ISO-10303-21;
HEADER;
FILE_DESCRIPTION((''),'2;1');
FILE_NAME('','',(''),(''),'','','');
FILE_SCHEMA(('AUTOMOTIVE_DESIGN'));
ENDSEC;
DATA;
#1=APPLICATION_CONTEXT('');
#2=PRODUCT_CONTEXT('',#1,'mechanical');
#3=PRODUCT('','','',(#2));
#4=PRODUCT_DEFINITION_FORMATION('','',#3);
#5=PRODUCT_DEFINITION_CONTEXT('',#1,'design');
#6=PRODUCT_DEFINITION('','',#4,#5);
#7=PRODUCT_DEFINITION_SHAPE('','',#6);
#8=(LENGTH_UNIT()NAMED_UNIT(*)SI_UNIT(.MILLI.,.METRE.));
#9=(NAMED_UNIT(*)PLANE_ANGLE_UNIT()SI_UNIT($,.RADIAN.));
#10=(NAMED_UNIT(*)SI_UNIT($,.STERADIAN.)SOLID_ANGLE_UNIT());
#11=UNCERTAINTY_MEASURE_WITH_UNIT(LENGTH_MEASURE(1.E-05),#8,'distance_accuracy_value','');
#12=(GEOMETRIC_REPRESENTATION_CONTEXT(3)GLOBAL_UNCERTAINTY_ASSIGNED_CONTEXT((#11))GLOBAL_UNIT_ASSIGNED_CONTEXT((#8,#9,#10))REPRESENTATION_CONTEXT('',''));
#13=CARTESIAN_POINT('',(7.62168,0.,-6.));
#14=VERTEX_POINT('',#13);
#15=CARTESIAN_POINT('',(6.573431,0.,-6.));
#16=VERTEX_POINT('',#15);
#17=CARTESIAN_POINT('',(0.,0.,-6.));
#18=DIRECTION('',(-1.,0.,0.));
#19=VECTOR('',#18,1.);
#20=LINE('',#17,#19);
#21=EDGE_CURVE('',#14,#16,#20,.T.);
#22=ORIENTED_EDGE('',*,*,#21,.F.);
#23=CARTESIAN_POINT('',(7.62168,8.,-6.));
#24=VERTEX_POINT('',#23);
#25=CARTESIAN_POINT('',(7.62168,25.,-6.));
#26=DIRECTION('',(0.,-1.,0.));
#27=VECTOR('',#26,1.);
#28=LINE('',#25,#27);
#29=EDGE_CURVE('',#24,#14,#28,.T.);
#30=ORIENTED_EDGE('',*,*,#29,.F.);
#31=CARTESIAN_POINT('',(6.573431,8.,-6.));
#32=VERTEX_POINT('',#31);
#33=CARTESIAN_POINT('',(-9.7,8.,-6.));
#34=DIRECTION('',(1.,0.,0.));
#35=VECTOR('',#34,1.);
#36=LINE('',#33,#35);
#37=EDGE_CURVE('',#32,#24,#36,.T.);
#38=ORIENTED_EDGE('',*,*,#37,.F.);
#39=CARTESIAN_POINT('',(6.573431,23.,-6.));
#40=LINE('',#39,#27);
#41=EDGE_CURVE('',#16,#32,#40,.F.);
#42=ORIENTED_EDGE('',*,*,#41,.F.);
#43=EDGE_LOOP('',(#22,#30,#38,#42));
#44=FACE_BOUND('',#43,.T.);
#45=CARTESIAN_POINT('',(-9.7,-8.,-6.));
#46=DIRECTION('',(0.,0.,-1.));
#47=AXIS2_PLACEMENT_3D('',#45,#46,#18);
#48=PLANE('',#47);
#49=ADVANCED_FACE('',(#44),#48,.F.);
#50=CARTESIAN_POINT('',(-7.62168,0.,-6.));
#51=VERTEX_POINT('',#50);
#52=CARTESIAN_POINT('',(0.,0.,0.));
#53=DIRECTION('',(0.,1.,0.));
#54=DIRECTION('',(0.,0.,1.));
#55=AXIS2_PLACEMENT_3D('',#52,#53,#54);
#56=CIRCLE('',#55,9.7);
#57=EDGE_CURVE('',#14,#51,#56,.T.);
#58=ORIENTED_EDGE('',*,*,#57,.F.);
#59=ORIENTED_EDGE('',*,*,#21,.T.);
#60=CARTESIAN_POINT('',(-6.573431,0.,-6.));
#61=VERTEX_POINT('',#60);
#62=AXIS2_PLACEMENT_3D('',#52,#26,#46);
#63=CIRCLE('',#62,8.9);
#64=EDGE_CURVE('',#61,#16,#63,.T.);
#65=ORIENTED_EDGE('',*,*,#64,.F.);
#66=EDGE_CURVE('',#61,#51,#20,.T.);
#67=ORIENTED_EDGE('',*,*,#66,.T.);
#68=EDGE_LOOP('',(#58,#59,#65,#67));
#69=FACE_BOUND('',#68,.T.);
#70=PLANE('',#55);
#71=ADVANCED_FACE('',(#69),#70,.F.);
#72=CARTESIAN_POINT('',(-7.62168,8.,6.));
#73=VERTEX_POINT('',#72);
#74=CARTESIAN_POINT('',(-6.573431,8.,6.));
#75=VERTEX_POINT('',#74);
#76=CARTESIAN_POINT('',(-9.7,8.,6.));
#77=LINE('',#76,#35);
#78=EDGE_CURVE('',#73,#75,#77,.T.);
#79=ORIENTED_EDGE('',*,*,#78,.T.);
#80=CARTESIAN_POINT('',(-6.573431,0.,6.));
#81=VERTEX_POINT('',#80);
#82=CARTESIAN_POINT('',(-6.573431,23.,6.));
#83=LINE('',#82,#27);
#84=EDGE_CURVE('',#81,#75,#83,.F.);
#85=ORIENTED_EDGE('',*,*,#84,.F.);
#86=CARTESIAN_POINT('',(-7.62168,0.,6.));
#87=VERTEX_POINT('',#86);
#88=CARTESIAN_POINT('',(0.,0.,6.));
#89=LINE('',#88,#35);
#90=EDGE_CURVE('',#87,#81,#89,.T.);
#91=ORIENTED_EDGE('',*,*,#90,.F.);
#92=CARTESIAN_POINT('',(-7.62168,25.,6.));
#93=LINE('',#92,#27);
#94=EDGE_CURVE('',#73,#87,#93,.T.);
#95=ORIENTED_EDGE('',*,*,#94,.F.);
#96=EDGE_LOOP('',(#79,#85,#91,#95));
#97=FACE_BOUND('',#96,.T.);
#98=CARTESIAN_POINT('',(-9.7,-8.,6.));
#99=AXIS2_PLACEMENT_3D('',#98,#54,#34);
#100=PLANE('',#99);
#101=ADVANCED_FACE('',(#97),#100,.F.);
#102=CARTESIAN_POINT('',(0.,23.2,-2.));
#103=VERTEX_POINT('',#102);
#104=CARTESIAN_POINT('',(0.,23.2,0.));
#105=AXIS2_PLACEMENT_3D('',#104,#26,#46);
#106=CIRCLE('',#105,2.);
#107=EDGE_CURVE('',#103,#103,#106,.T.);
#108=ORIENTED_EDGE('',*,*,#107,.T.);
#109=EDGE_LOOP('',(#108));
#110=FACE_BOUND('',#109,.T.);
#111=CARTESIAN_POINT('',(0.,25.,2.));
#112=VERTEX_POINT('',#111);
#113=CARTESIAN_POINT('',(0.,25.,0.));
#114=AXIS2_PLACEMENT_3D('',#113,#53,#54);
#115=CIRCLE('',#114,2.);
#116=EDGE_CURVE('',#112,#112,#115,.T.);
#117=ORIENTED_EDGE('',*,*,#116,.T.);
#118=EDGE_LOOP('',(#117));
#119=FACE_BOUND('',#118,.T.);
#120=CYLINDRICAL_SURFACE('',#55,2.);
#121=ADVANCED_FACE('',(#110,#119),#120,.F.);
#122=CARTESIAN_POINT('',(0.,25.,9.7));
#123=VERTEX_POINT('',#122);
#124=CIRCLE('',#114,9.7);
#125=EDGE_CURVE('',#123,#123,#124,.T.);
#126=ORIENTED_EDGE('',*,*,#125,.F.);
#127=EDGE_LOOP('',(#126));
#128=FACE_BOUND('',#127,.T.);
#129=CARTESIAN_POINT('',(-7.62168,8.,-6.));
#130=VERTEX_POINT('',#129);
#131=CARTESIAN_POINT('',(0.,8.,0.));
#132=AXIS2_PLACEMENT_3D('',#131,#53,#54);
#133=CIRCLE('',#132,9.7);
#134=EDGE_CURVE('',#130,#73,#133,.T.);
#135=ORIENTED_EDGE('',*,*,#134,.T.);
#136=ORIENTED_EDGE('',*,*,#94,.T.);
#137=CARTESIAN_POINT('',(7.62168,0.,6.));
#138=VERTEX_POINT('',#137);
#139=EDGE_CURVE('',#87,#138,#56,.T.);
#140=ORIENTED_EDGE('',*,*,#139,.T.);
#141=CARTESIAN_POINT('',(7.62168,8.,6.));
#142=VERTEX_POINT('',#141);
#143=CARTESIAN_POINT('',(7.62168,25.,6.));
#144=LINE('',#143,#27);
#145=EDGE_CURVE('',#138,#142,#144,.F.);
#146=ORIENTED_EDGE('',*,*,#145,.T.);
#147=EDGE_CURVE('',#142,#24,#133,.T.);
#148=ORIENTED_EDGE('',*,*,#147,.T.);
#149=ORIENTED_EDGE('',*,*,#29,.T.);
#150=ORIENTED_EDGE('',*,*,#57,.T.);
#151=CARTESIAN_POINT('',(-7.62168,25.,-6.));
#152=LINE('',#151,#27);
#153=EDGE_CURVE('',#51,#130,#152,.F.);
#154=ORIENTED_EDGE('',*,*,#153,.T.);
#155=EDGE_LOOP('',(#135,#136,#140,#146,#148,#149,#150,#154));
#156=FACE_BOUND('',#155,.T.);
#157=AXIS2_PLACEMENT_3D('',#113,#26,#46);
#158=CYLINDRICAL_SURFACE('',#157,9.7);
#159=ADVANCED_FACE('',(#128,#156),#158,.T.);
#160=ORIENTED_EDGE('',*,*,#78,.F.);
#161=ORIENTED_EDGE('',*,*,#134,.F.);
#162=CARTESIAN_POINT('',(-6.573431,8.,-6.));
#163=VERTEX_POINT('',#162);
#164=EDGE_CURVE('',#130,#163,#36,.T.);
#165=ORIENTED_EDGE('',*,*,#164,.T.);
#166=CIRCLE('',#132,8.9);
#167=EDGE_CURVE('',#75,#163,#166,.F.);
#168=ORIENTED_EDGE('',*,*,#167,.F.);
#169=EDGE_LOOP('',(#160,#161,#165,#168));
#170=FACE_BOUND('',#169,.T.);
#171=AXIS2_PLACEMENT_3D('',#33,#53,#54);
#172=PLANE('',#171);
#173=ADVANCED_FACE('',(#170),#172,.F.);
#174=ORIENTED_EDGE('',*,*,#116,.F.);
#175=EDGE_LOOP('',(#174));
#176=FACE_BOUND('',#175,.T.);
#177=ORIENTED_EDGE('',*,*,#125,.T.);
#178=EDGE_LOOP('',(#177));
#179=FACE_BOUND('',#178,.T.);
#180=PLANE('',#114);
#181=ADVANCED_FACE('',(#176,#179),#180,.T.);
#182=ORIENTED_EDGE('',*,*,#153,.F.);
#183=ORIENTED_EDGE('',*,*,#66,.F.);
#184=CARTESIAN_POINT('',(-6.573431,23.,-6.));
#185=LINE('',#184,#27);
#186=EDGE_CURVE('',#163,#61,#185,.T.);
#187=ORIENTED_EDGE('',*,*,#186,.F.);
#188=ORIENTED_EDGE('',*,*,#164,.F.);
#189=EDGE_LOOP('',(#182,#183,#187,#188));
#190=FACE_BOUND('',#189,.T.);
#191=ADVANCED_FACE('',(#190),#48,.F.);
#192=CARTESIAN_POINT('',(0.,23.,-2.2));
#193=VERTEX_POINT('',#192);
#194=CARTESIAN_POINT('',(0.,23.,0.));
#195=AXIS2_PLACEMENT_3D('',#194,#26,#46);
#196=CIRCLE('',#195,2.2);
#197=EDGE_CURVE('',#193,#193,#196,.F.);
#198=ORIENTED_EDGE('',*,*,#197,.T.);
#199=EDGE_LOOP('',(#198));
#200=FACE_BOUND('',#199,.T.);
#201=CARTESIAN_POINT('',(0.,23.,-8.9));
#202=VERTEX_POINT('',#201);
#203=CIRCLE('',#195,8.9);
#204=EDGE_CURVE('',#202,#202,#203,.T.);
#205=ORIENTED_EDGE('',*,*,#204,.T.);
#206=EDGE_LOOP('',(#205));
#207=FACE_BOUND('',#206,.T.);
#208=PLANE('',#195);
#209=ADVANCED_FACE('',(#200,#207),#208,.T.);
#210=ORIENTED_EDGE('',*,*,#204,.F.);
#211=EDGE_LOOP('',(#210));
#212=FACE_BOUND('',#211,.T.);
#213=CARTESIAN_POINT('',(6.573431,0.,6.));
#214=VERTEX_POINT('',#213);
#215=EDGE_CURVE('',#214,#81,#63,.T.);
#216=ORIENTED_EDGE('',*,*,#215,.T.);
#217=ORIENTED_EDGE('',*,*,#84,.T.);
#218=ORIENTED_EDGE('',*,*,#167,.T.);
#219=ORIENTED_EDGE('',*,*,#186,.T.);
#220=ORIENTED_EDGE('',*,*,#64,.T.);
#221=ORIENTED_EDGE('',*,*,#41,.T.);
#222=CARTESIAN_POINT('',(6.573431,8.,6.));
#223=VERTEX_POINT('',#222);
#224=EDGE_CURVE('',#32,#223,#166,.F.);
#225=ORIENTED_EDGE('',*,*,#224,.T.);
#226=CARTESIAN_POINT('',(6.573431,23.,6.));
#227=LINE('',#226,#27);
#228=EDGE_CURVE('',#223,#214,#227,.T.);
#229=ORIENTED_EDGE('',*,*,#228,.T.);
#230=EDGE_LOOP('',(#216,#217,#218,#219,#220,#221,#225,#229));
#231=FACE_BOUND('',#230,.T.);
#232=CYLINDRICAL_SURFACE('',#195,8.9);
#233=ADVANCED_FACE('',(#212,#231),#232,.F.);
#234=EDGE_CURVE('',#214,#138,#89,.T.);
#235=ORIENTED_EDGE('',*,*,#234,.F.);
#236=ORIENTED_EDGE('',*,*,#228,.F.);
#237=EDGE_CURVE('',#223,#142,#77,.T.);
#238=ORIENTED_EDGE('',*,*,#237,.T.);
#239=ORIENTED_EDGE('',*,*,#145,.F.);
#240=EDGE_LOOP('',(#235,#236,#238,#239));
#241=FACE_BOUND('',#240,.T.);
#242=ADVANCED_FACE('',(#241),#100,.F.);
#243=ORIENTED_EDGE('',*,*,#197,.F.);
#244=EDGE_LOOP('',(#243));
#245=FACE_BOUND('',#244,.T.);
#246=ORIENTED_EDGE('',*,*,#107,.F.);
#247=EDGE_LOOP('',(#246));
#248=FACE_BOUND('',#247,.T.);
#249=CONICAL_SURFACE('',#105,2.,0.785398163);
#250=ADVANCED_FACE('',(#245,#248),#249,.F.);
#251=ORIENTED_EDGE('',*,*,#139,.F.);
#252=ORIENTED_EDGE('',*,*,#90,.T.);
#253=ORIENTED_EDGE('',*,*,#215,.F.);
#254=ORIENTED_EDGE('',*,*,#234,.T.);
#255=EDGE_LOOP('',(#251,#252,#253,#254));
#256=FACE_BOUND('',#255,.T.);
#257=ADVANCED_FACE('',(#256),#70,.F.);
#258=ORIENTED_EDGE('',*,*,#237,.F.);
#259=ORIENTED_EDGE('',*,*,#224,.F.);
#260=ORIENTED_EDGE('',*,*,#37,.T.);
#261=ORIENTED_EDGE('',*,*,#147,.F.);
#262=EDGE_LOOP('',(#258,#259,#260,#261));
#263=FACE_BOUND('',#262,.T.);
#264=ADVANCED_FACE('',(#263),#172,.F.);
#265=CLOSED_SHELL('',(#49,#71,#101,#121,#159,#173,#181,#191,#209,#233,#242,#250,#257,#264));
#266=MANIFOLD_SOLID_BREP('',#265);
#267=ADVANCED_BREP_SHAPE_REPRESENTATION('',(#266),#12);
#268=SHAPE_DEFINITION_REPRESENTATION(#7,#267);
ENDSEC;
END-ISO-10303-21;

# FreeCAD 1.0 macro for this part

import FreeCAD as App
import Part
import Sketcher


def edges_at(feature, points):
    """Names of the edges that pass closest to the given points."""
    edges = feature.Shape.Edges
    near = lambda p: min(range(len(edges)), key=lambda i: edges[i].distToShape(Part.Vertex(*p))[0])
    return sorted({f"Edge{near(p) + 1}" for p in points})

doc = App.newDocument("Part")
body = doc.addObject("PartDesign::Body", "Body")

# Sketch on XZ plane
sketch1 = body.newObject("Sketcher::SketchObject", "Sketch")
sketch1.AttachmentSupport = (doc.getObject("XZ_Plane"), [""])
sketch1.MapMode = "FlatFace"
sketch1.addGeometry(Part.Circle(App.Vector(0, 0, 0), App.Vector(0, 0, 1), 10), False)
sketch1.addConstraint([
    Sketcher.Constraint("Coincident", 0, 3, -1, 1),
    Sketcher.Constraint("Diameter", 0, 19.4),
])
pad1 = body.newObject("PartDesign::Pad", "Pad")
pad1.Profile = sketch1
pad1.Length = 25
pad1.Reversed = True

# Sketch on XZ plane
sketch2 = body.newObject("Sketcher::SketchObject", "Sketch001")
sketch2.AttachmentSupport = (doc.getObject("XZ_Plane"), [""])
sketch2.MapMode = "FlatFace"
sketch2.addGeometry(Part.Circle(App.Vector(0, 0, 0), App.Vector(0, 0, 1), 9), False)
sketch2.addConstraint([
    Sketcher.Constraint("Coincident", 0, 3, -1, 1),
    Sketcher.Constraint("Diameter", 0, 17.8),
])
pocket1 = body.newObject("PartDesign::Pocket", "Pocket")
pocket1.Profile = sketch2
pocket1.Length = 23

# Sketch on YZ plane
sketch3 = body.newObject("Sketcher::SketchObject", "Sketch002")
sketch3.AttachmentSupport = (doc.getObject("YZ_Plane"), [""])
sketch3.MapMode = "FlatFace"
sketch3.addGeometry([
    Part.LineSegment(App.Vector(8, 6, 0), App.Vector(-8, 6, 0)),
    Part.LineSegment(App.Vector(-8, 6, 0), App.Vector(-8, -6, 0)),
    Part.LineSegment(App.Vector(-8, -6, 0), App.Vector(8, -6, 0)),
    Part.LineSegment(App.Vector(8, -6, 0), App.Vector(8, 6, 0)),
], False)
sketch3.addConstraint([
    Sketcher.Constraint("Coincident", 0, 2, 1, 1),
    Sketcher.Constraint("Coincident", 1, 2, 2, 1),
    Sketcher.Constraint("Coincident", 2, 2, 3, 1),
    Sketcher.Constraint("Coincident", 3, 2, 0, 1),
    Sketcher.Constraint("Horizontal", 0),
    Sketcher.Constraint("Vertical", 1),
    Sketcher.Constraint("Horizontal", 2),
    Sketcher.Constraint("Vertical", 3),
    Sketcher.Constraint("Symmetric", 0, 2, 2, 2, -1, 1),
    Sketcher.Constraint("DistanceX", 0, 2, 0, 1, 16.0),
    Sketcher.Constraint("DistanceY", 1, 2, 1, 1, 12.0),
])
pocket2 = body.newObject("PartDesign::Pocket", "Pocket001")
pocket2.Profile = sketch3
pocket2.Type = "ThroughAll"
pocket2.Midplane = True

# Sketch on XZ plane
sketch4 = body.newObject("Sketcher::SketchObject", "Sketch003")
sketch4.AttachmentSupport = (doc.getObject("XZ_Plane"), [""])
sketch4.MapMode = "FlatFace"
sketch4.AttachmentOffset = App.Placement(App.Vector(0, 0, -25), App.Rotation())
sketch4.addGeometry(Part.Circle(App.Vector(0, 0, 0), App.Vector(0, 0, 1), 2), False)
sketch4.addConstraint([
    Sketcher.Constraint("Coincident", 0, 3, -1, 1),
    Sketcher.Constraint("Diameter", 0, 4.0),
])
pocket3 = body.newObject("PartDesign::Pocket", "Pocket002")
pocket3.Profile = sketch4
pocket3.Type = "ThroughAll"
pocket3.Reversed = True
doc.recompute()

chamfer = body.newObject("PartDesign::Chamfer", "Chamfer")
chamfer.Base = (pocket3, edges_at(pocket3, [(0, 23, -2)]))
chamfer.Size = 0.2

doc.recompute()
